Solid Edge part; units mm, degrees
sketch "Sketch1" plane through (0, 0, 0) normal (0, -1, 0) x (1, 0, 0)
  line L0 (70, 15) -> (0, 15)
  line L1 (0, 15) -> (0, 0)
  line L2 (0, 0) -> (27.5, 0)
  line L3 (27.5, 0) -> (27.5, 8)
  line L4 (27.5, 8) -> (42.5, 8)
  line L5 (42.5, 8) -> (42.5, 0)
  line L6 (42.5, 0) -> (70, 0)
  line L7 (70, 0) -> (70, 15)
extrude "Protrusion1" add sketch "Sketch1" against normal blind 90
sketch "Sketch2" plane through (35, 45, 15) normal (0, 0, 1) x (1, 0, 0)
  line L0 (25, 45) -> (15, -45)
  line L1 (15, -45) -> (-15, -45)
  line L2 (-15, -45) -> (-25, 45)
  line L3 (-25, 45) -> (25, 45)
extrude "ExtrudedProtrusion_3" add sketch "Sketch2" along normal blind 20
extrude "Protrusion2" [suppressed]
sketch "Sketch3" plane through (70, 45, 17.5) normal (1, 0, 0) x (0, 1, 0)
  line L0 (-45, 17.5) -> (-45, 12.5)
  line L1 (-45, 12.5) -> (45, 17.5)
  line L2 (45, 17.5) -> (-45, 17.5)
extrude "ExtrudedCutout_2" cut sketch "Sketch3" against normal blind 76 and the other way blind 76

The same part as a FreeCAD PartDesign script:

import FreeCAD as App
import Part
import Sketcher

V = App.Vector
Q = App.Units.Quantity

doc = App.newDocument("Part")
body = doc.addObject("PartDesign::Body", "Body")

# Sketch on XZ plane
sketch1 = doc.addObject("Sketcher::SketchObject", "Sketch")
body.addObject(sketch1)
sketch1.AttachmentSupport = (doc.XZ_Plane, [""])
sketch1.MapMode = "FlatFace"
sketch1.addGeometry([
    Part.LineSegment(V(70, 0, 0), V(70, 15, 0)),  # 0
    Part.LineSegment(V(70, 15, 0), V(0, 15, 0)),  # 1
    Part.LineSegment(V(0, 15, 0), V(0, 0, 0)),  # 2
    Part.LineSegment(V(0, 0, 0), V(28, 0, 0)),  # 3
    Part.LineSegment(V(28, 0, 0), V(28, 8, 0)),  # 4
    Part.LineSegment(V(28, 8, 0), V(42, 8, 0)),  # 5
    Part.LineSegment(V(42, 8, 0), V(42, 0, 0)),  # 6
    Part.LineSegment(V(42, 0, 0), V(70, 0, 0)),  # 7
], False)
sketch1.addConstraint([
    Sketcher.Constraint("Coincident", 0, 2, 1, 1),
    Sketcher.Constraint("Coincident", 1, 2, 2, 1),
    Sketcher.Constraint("Coincident", 2, 2, 3, 1),
    Sketcher.Constraint("Coincident", 3, 2, 4, 1),
    Sketcher.Constraint("Coincident", 4, 2, 5, 1),
    Sketcher.Constraint("Coincident", 5, 2, 6, 1),
    Sketcher.Constraint("Coincident", 6, 2, 7, 1),
    Sketcher.Constraint("Coincident", 7, 2, 0, 1),
    Sketcher.Constraint("Vertical", 0),
    Sketcher.Constraint("Horizontal", 1),
    Sketcher.Constraint("Vertical", 2),
    Sketcher.Constraint("Horizontal", 3),
    Sketcher.Constraint("Vertical", 4),
    Sketcher.Constraint("Horizontal", 5),
    Sketcher.Constraint("Vertical", 6),
    Sketcher.Constraint("Horizontal", 7),
    Sketcher.Constraint("Coincident", 2, 2, -1, 1),
    Sketcher.Constraint("PointOnObject", 6, 2, -1),
    Sketcher.Constraint("Equal", 3, 7),
    Sketcher.Constraint("Equal", 5, 0),
    Sketcher.Constraint("DistanceX", 1, 2, 1, 1, Q("70 mm")),
    Sketcher.Constraint("DistanceX", 5, 1, 5, 2, Q("15 mm")),
    Sketcher.Constraint("DistanceY", 4, 1, 4, 2, Q("8 mm")),
])
pad1 = doc.addObject("PartDesign::Pad", "Pad")
body.addObject(pad1)
pad1.Profile = sketch1
pad1.Length = 90
pad1.Reversed = True

# Sketch on XY plane
sketch2 = doc.addObject("Sketcher::SketchObject", "Sketch001")
body.addObject(sketch2)
sketch2.AttachmentSupport = (doc.XY_Plane, [""])
sketch2.MapMode = "FlatFace"
sketch2.AttachmentOffset = App.Placement(V(0, 0, 15), App.Rotation())
sketch2.addGeometry([
    Part.LineSegment(V(50, 0, 0), V(60, 90, 0)),
    Part.LineSegment(V(60, 90, 0), V(10, 90, 0)),
    Part.LineSegment(V(10, 90, 0), V(20, 0, 0)),
    Part.LineSegment(V(20, 0, 0), V(50, 0, 0)),
], False)
sketch2.addConstraint([
    Sketcher.Constraint("Coincident", 0, 2, 1, 1),
    Sketcher.Constraint("Coincident", 1, 2, 2, 1),
    Sketcher.Constraint("Coincident", 2, 2, 3, 1),
    Sketcher.Constraint("Coincident", 3, 2, 0, 1),
    Sketcher.Constraint("Horizontal", 1),
    Sketcher.Constraint("Horizontal", 3),
    Sketcher.Constraint("PointOnObject", 2, 2, -1),
    Sketcher.Constraint("Equal", 0, 2),
    Sketcher.Constraint("DistanceX", 1, 2, 1, 1, Q("50 mm")),
    Sketcher.Constraint("DistanceX", 3, 1, 3, 2, Q("30 mm")),
    Sketcher.Constraint("DistanceX", -1, 1, 0, 2, Q("60 mm")),
    Sketcher.Constraint("DistanceY", -1, 1, 0, 2, Q("90 mm")),
])
pad2 = doc.addObject("PartDesign::Pad", "Pad001")
body.addObject(pad2)
pad2.Profile = sketch2
pad2.Length = 20

# Sketch on YZ plane
sketch3 = doc.addObject("Sketcher::SketchObject", "Sketch002")
body.addObject(sketch3)
sketch3.AttachmentSupport = (doc.YZ_Plane, [""])
sketch3.MapMode = "FlatFace"
sketch3.AttachmentOffset = App.Placement(V(0, 0, 70), App.Rotation())
sketch3.addGeometry([
    Part.LineSegment(V(90, 35, 0), V(0, 35, 0)),
    Part.LineSegment(V(0, 35, 0), V(0, 30, 0)),
    Part.LineSegment(V(0, 30, 0), V(90, 35, 0)),
], False)
sketch3.addConstraint([
    Sketcher.Constraint("Coincident", 0, 2, 1, 1),
    Sketcher.Constraint("Coincident", 1, 2, 2, 1),
    Sketcher.Constraint("Coincident", 2, 2, 0, 1),
    Sketcher.Constraint("Horizontal", 0),
    Sketcher.Constraint("Vertical", 1),
    Sketcher.Constraint("PointOnObject", 0, 2, -2),
    Sketcher.Constraint("DistanceX", 0, 2, 0, 1, Q("90 mm")),
    Sketcher.Constraint("DistanceY", 1, 2, 1, 1, Q("5 mm")),
    Sketcher.Constraint("DistanceY", -1, 1, 0, 2, Q("35 mm")),
])
pocket1 = doc.addObject("PartDesign::Pocket", "Pocket")
body.addObject(pocket1)
pocket1.Profile = sketch3
pocket1.Type = "ThroughAll"
pocket1.Midplane = True

doc.recompute()
